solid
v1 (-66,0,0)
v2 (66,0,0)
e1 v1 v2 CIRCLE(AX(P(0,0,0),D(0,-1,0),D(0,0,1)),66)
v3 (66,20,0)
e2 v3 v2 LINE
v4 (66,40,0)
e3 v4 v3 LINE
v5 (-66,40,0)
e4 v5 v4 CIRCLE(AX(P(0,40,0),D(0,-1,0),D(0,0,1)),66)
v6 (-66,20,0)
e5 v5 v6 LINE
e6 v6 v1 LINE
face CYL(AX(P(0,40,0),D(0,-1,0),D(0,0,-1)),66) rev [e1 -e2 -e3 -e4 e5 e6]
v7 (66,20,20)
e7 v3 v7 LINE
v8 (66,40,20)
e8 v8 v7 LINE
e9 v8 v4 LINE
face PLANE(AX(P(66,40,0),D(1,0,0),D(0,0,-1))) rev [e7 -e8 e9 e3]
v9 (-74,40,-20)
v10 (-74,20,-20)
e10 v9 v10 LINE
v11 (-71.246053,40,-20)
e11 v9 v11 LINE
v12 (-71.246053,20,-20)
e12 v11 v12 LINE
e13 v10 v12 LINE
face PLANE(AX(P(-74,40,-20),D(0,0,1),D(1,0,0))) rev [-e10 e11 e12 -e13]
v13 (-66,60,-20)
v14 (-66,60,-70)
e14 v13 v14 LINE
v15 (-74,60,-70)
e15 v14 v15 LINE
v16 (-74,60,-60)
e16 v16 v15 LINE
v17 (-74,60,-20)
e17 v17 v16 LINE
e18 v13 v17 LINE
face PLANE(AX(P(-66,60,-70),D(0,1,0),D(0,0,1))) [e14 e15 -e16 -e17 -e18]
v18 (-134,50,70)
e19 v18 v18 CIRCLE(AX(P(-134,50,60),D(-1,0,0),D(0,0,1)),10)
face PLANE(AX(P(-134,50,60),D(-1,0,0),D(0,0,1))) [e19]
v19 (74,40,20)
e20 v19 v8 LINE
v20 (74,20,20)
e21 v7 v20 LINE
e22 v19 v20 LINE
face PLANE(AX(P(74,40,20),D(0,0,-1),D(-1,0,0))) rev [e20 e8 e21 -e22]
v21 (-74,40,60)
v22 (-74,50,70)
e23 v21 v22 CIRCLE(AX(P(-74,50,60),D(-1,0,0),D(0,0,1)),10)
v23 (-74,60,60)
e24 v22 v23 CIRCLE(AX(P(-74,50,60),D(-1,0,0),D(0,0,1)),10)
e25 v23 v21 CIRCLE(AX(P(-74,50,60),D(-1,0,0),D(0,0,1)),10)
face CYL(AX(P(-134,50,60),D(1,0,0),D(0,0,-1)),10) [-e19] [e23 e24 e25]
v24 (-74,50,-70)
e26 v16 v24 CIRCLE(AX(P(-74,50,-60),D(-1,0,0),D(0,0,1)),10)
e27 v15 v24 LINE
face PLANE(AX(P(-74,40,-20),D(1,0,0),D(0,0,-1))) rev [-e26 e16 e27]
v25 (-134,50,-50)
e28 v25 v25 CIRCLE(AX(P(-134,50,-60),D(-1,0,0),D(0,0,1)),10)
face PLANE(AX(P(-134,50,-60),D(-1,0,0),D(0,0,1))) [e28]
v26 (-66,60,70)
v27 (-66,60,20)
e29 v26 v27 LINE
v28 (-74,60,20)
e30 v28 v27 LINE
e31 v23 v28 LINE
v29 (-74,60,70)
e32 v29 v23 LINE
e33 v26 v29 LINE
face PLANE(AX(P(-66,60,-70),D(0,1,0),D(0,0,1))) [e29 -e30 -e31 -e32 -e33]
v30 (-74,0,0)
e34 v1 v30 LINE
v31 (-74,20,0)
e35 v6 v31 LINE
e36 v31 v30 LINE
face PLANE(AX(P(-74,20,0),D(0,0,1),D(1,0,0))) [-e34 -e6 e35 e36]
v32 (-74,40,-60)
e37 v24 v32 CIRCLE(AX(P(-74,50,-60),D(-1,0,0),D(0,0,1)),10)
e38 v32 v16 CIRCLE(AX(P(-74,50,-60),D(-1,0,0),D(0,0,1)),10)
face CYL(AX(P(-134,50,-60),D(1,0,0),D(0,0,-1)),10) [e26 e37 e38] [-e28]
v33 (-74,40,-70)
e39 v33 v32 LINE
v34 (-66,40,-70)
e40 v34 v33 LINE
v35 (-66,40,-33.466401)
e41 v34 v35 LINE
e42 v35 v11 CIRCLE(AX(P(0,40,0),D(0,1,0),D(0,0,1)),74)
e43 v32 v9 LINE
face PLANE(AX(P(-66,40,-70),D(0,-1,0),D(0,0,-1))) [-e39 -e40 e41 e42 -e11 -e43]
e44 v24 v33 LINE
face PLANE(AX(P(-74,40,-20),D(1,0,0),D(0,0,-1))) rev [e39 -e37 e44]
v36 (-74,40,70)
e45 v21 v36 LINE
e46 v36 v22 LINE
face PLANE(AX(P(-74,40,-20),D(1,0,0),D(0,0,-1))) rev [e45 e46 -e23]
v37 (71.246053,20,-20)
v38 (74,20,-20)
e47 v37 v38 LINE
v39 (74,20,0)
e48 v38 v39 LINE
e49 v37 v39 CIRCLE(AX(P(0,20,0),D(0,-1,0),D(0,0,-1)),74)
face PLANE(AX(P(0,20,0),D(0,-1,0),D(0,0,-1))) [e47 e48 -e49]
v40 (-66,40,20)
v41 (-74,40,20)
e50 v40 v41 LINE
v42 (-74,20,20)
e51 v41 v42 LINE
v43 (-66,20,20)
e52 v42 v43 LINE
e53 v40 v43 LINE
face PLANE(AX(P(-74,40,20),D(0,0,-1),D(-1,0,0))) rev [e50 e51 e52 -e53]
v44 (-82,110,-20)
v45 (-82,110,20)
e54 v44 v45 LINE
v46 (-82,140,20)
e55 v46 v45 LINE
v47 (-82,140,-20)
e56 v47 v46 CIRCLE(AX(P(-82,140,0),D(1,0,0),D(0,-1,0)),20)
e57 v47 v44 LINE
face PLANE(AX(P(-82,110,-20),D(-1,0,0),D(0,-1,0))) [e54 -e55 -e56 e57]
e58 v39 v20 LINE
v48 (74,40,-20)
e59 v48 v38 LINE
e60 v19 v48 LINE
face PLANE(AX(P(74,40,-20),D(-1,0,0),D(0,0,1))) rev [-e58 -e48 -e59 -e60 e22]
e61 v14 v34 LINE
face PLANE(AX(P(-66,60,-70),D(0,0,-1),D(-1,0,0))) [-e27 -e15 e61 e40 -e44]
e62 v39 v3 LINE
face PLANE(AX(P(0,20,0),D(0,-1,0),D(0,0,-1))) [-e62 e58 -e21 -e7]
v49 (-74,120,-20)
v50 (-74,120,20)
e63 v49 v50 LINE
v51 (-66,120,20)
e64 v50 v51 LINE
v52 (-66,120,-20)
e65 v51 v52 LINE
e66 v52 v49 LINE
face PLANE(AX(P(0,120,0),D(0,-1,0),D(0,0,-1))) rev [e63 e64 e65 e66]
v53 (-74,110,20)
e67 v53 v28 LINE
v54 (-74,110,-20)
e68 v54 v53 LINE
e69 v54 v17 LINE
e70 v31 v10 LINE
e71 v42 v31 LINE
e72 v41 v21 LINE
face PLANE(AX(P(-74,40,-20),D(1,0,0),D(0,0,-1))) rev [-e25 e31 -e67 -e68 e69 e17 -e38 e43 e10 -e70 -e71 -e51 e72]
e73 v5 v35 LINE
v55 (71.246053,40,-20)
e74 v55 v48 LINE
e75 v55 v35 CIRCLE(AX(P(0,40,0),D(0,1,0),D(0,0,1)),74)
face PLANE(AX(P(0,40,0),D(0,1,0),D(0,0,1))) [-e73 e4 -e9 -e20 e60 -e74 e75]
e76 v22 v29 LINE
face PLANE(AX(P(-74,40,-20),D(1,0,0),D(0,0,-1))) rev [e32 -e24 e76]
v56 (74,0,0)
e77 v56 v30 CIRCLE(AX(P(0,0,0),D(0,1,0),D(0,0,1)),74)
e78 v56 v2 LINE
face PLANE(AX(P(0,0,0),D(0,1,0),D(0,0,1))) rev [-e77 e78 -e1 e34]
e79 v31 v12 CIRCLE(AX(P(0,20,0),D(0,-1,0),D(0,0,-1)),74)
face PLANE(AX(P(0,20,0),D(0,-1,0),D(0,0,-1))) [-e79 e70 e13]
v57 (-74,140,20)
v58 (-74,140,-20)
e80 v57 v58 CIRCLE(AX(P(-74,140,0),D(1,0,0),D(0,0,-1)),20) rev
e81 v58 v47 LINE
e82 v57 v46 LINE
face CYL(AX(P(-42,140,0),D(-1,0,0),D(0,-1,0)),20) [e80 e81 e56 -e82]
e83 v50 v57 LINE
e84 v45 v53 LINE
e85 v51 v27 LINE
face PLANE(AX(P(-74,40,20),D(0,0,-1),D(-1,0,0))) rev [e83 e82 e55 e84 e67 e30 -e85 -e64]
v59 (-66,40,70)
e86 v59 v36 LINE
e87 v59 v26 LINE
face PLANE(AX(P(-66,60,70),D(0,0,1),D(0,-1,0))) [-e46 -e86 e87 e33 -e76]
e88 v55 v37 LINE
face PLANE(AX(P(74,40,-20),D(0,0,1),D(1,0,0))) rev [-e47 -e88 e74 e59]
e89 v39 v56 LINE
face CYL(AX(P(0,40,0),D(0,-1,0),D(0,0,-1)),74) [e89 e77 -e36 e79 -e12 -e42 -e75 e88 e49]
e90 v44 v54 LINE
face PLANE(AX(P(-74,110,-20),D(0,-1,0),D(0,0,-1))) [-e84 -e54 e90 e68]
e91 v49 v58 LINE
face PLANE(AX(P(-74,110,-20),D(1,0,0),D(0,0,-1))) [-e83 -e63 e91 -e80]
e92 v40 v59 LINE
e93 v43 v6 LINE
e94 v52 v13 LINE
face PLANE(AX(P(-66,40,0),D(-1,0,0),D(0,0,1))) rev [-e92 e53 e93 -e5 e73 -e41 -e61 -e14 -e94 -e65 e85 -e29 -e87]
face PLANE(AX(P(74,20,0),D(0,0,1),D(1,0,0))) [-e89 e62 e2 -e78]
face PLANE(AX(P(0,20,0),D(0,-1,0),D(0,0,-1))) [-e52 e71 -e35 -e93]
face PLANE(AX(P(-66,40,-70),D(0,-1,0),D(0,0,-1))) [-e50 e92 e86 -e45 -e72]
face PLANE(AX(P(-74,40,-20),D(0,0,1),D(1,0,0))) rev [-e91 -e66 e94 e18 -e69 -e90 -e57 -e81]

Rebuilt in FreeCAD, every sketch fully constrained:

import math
import FreeCAD as App
import Part
import Sketcher
from FreeCAD import Vector

doc = App.newDocument("Part")
body = doc.addObject("PartDesign::Body", "Body")

sketch1 = body.newObject("Sketcher::SketchObject", "Sketch")
sketch1.AttachmentSupport = (doc.getObject("XZ_Plane"), [""])
sketch1.MapMode = "FlatFace"
sketch1.addGeometry(Part.LineSegment(Vector(-71.2, -20, 0), Vector(-74, -20, 0)), False)
sketch1.addGeometry(Part.LineSegment(Vector(-74, -20, 0), Vector(-74, 20, 0)), False)
sketch1.addGeometry(Part.LineSegment(Vector(-74, 20, 0), Vector(-66, 20, 0)), False)
sketch1.addGeometry(Part.LineSegment(Vector(-66, 20, 0), Vector(-66, 0, 0)), False)
sketch1.addGeometry(Part.ArcOfCircle(Part.Circle(Vector(0, 0, 0), Vector(0, 0, 1), 66), math.radians(180), math.radians(360)), False)
sketch1.addGeometry(Part.LineSegment(Vector(66, 0, 0), Vector(66, 20, 0)), False)
sketch1.addGeometry(Part.LineSegment(Vector(66, 20, 0), Vector(74, 20, 0)), False)
sketch1.addGeometry(Part.LineSegment(Vector(74, 20, 0), Vector(74, -20, 0)), False)
sketch1.addGeometry(Part.LineSegment(Vector(74, -20, 0), Vector(71.2, -20, 0)), False)
sketch1.addGeometry(Part.ArcOfCircle(Part.Circle(Vector(0, 0, 0), Vector(0, 0, 1), 74), math.radians(-164), math.radians(-16)), False)
sketch1.addConstraint(Sketcher.Constraint("Coincident", 0, 2, 1, 1))
sketch1.addConstraint(Sketcher.Constraint("Coincident", 1, 2, 2, 1))
sketch1.addConstraint(Sketcher.Constraint("Coincident", 2, 2, 3, 1))
sketch1.addConstraint(Sketcher.Constraint("Tangent", 3, 2, 4, 1))
sketch1.addConstraint(Sketcher.Constraint("Tangent", 4, 2, 5, 1))
sketch1.addConstraint(Sketcher.Constraint("Coincident", 5, 2, 6, 1))
sketch1.addConstraint(Sketcher.Constraint("Coincident", 6, 2, 7, 1))
sketch1.addConstraint(Sketcher.Constraint("Coincident", 7, 2, 8, 1))
sketch1.addConstraint(Sketcher.Constraint("Coincident", 8, 2, 9, 2))
sketch1.addConstraint(Sketcher.Constraint("Coincident", 9, 1, 0, 1))
sketch1.addConstraint(Sketcher.Constraint("Horizontal", 0))
sketch1.addConstraint(Sketcher.Constraint("Vertical", 1))
sketch1.addConstraint(Sketcher.Constraint("Horizontal", 2))
sketch1.addConstraint(Sketcher.Constraint("Vertical", 3))
sketch1.addConstraint(Sketcher.Constraint("Vertical", 5))
sketch1.addConstraint(Sketcher.Constraint("Horizontal", 6))
sketch1.addConstraint(Sketcher.Constraint("Vertical", 7))
sketch1.addConstraint(Sketcher.Constraint("Horizontal", 8))
sketch1.addConstraint(Sketcher.Constraint("Coincident", 4, 3, -1, 1))
sketch1.addConstraint(Sketcher.Constraint("Coincident", 9, 3, -1, 1))
sketch1.addConstraint(Sketcher.Constraint("Symmetric", 0, 2, 6, 2, -1, 1))
sketch1.addConstraint(Sketcher.Constraint("Horizontal", 2, 2, 5, 2))
sketch1.addConstraint(Sketcher.Constraint("Horizontal", 0, 2, 7, 2))
sketch1.addConstraint(Sketcher.Constraint("Radius", 4, 66.0))
sketch1.addConstraint(Sketcher.Constraint("Radius", 9, 74.0))
sketch1.addConstraint(Sketcher.Constraint("DistanceX", 2, 1, 2, 2, 8.0))
sketch1.addConstraint(Sketcher.Constraint("DistanceY", 1, 1, 1, 2, 40.0))
pad1 = body.newObject("PartDesign::Pad", "Pad")
pad1.Profile = sketch1
pad1.Length = 40
pad1.Reversed = True

sketch2 = body.newObject("Sketcher::SketchObject", "Sketch001")
sketch2.AttachmentSupport = (doc.getObject("XZ_Plane"), [""])
sketch2.MapMode = "FlatFace"
sketch2.AttachmentOffset = App.Placement(Vector(0, 0, -40), App.Rotation())
sketch2.addGeometry(Part.LineSegment(Vector(-74, -20, 0), Vector(-74, 20, 0)), False)
sketch2.addGeometry(Part.LineSegment(Vector(-74, 20, 0), Vector(-66, 20, 0)), False)
sketch2.addGeometry(Part.LineSegment(Vector(-66, 20, 0), Vector(-66, -20, 0)), False)
sketch2.addGeometry(Part.LineSegment(Vector(-66, -20, 0), Vector(-74, -20, 0)), False)
sketch2.addGeometry(Part.LineSegment(Vector(66, -20, 0), Vector(66, 20, 0)), False)
sketch2.addGeometry(Part.LineSegment(Vector(66, 20, 0), Vector(74, 20, 0)), False)
sketch2.addGeometry(Part.LineSegment(Vector(74, 20, 0), Vector(74, -20, 0)), False)
sketch2.addGeometry(Part.LineSegment(Vector(74, -20, 0), Vector(66, -20, 0)), False)
sketch2.addConstraint(Sketcher.Constraint("Coincident", 0, 2, 1, 1))
sketch2.addConstraint(Sketcher.Constraint("Coincident", 1, 2, 2, 1))
sketch2.addConstraint(Sketcher.Constraint("Coincident", 2, 2, 3, 1))
sketch2.addConstraint(Sketcher.Constraint("Coincident", 3, 2, 0, 1))
sketch2.addConstraint(Sketcher.Constraint("Coincident", 4, 2, 5, 1))
sketch2.addConstraint(Sketcher.Constraint("Coincident", 5, 2, 6, 1))
sketch2.addConstraint(Sketcher.Constraint("Coincident", 6, 2, 7, 1))
sketch2.addConstraint(Sketcher.Constraint("Coincident", 7, 2, 4, 1))
sketch2.addConstraint(Sketcher.Constraint("Vertical", 0))
sketch2.addConstraint(Sketcher.Constraint("Horizontal", 1))
sketch2.addConstraint(Sketcher.Constraint("Vertical", 2))
sketch2.addConstraint(Sketcher.Constraint("Horizontal", 3))
sketch2.addConstraint(Sketcher.Constraint("Vertical", 4))
sketch2.addConstraint(Sketcher.Constraint("Horizontal", 5))
sketch2.addConstraint(Sketcher.Constraint("Vertical", 6))
sketch2.addConstraint(Sketcher.Constraint("Horizontal", 7))
sketch2.addConstraint(Sketcher.Constraint("Symmetric", 2, 2, 4, 2, -1, 1))
sketch2.addConstraint(Sketcher.Constraint("Symmetric", 0, 2, 6, 2, -1, 1))
sketch2.addConstraint(Sketcher.Constraint("Horizontal", 1, 2, 4, 2))
sketch2.addConstraint(Sketcher.Constraint("DistanceX", 1, 1, 1, 2, 8.0))
sketch2.addConstraint(Sketcher.Constraint("DistanceY", 0, 1, 0, 2, 40.0))
sketch2.addConstraint(Sketcher.Constraint("DistanceX", 0, 2, -1, 1, 74.0))
pad2 = body.newObject("PartDesign::Pad", "Pad001")
pad2.Profile = sketch2
pad2.Length = 80
pad2.Reversed = True

sketch3 = body.newObject("Sketcher::SketchObject", "Sketch002")
sketch3.AttachmentSupport = (doc.getObject("YZ_Plane"), [""])
sketch3.MapMode = "FlatFace"
sketch3.AttachmentOffset = App.Placement(Vector(0, 0, 74), App.Rotation())
sketch3.addGeometry(Part.LineSegment(Vector(155, 67, 0), Vector(40, 67, 0)), False)
sketch3.addGeometry(Part.LineSegment(Vector(40, 67, 0), Vector(40, -20, 0)), False)
sketch3.addGeometry(Part.LineSegment(Vector(40, -20, 0), Vector(155, -20, 0)), False)
sketch3.addGeometry(Part.LineSegment(Vector(155, -20, 0), Vector(155, 67, 0)), False)
sketch3.addConstraint(Sketcher.Constraint("Coincident", 0, 2, 1, 1))
sketch3.addConstraint(Sketcher.Constraint("Coincident", 1, 2, 2, 1))
sketch3.addConstraint(Sketcher.Constraint("Coincident", 2, 2, 3, 1))
sketch3.addConstraint(Sketcher.Constraint("Coincident", 3, 2, 0, 1))
sketch3.addConstraint(Sketcher.Constraint("Horizontal", 0))
sketch3.addConstraint(Sketcher.Constraint("Vertical", 1))
sketch3.addConstraint(Sketcher.Constraint("Horizontal", 2))
sketch3.addConstraint(Sketcher.Constraint("Vertical", 3))
sketch3.addConstraint(Sketcher.Constraint("DistanceX", -1, 1, 0, 2, 40.0))
sketch3.addConstraint(Sketcher.Constraint("DistanceY", 1, 2, -1, 1, 20.0))
sketch3.addConstraint(Sketcher.Constraint("DistanceY", 1, 2, 1, 1, 87.007662))
sketch3.addConstraint(Sketcher.Constraint("DistanceX", 0, 2, 0, 1, 115.014953))
pocket1 = body.newObject("PartDesign::Pocket", "Pocket")
pocket1.Profile = sketch3
pocket1.Length = 10

sketch4 = body.newObject("Sketcher::SketchObject", "Sketch003")
sketch4.AttachmentSupport = (doc.getObject("XZ_Plane"), [""])
sketch4.MapMode = "FlatFace"
sketch4.addGeometry(Part.Circle(Vector(0, 0, 0), Vector(0, 0, 1), 85), False)
sketch4.addGeometry(Part.LineSegment(Vector(-66, 20, 0), Vector(-71, 20, 0)), False)
sketch4.addGeometry(Part.ArcOfCircle(Part.Circle(Vector(0, 0, 0), Vector(0, 0, 1), 74), math.radians(16), math.radians(164)), False)
sketch4.addGeometry(Part.LineSegment(Vector(71, 20, 0), Vector(66, 20, 0)), False)
sketch4.addGeometry(Part.LineSegment(Vector(66, 20, 0), Vector(66, 0, 0)), False)
sketch4.addGeometry(Part.LineSegment(Vector(66, 0, 0), Vector(74, 0, 0)), False)
sketch4.addGeometry(Part.ArcOfCircle(Part.Circle(Vector(0, 0, 0), Vector(0, 0, 1), 74), math.radians(180), math.radians(360)), False)
sketch4.addGeometry(Part.LineSegment(Vector(-74, 0, 0), Vector(-66, 0, 0)), False)
sketch4.addGeometry(Part.LineSegment(Vector(-66, 0, 0), Vector(-66, 20, 0)), False)
sketch4.addConstraint(Sketcher.Constraint("Coincident", 1, 2, 2, 2))
sketch4.addConstraint(Sketcher.Constraint("Coincident", 2, 1, 3, 1))
sketch4.addConstraint(Sketcher.Constraint("Coincident", 3, 2, 4, 1))
sketch4.addConstraint(Sketcher.Constraint("Coincident", 4, 2, 5, 1))
sketch4.addConstraint(Sketcher.Constraint("Coincident", 5, 2, 6, 2))
sketch4.addConstraint(Sketcher.Constraint("Coincident", 6, 1, 7, 1))
sketch4.addConstraint(Sketcher.Constraint("Coincident", 7, 2, 8, 1))
sketch4.addConstraint(Sketcher.Constraint("Coincident", 8, 2, 1, 1))
sketch4.addConstraint(Sketcher.Constraint("Horizontal", 1))
sketch4.addConstraint(Sketcher.Constraint("Horizontal", 3))
sketch4.addConstraint(Sketcher.Constraint("Vertical", 4))
sketch4.addConstraint(Sketcher.Constraint("Horizontal", 5))
sketch4.addConstraint(Sketcher.Constraint("Horizontal", 7))
sketch4.addConstraint(Sketcher.Constraint("Vertical", 8))
sketch4.addConstraint(Sketcher.Constraint("Coincident", 0, 3, -1, 1))
sketch4.addConstraint(Sketcher.Constraint("Coincident", 2, 3, -1, 1))
sketch4.addConstraint(Sketcher.Constraint("Coincident", 6, 3, -1, 1))
sketch4.addConstraint(Sketcher.Constraint("Equal", 2, 6))
sketch4.addConstraint(Sketcher.Constraint("Symmetric", 4, 2, 7, 2, -1, 1))
sketch4.addConstraint(Sketcher.Constraint("PointOnObject", 4, 2, -1))
sketch4.addConstraint(Sketcher.Constraint("Horizontal", 1, 2, 2, 1))
sketch4.addConstraint(Sketcher.Constraint("Radius", 2, 74.0))
sketch4.addConstraint(Sketcher.Constraint("DistanceX", 5, 1, 5, 2, 8.0))
sketch4.addConstraint(Sketcher.Constraint("DistanceY", 4, 2, 4, 1, 20.0))
sketch4.addConstraint(Sketcher.Constraint("Diameter", 0, 170.126722))
pocket2 = body.newObject("PartDesign::Pocket", "Pocket001")
pocket2.Profile = sketch4
pocket2.Length = 20

sketch5 = body.newObject("Sketcher::SketchObject", "Sketch004")
sketch5.AttachmentSupport = (doc.getObject("YZ_Plane"), [""])
sketch5.MapMode = "FlatFace"
sketch5.AttachmentOffset = App.Placement(Vector(0, 0, -74), App.Rotation())
sketch5.addGeometry(Part.LineSegment(Vector(60, -70, 0), Vector(40, -70, 0)), False)
sketch5.addGeometry(Part.LineSegment(Vector(40, -70, 0), Vector(40, 70, 0)), False)
sketch5.addGeometry(Part.LineSegment(Vector(40, 70, 0), Vector(60, 70, 0)), False)
sketch5.addGeometry(Part.LineSegment(Vector(60, 70, 0), Vector(60, -70, 0)), False)
sketch5.addConstraint(Sketcher.Constraint("Coincident", 0, 2, 1, 1))
sketch5.addConstraint(Sketcher.Constraint("Coincident", 1, 2, 2, 1))
sketch5.addConstraint(Sketcher.Constraint("Coincident", 2, 2, 3, 1))
sketch5.addConstraint(Sketcher.Constraint("Coincident", 3, 2, 0, 1))
sketch5.addConstraint(Sketcher.Constraint("Horizontal", 0))
sketch5.addConstraint(Sketcher.Constraint("Vertical", 1))
sketch5.addConstraint(Sketcher.Constraint("Horizontal", 2))
sketch5.addConstraint(Sketcher.Constraint("Vertical", 3))
sketch5.addConstraint(Sketcher.Constraint("DistanceX", 0, 2, 0, 1, 20.0))
sketch5.addConstraint(Sketcher.Constraint("DistanceY", 1, 1, 1, 2, 140.0))
sketch5.addConstraint(Sketcher.Constraint("DistanceX", -1, 1, 0, 2, 40.0))
sketch5.addConstraint(Sketcher.Constraint("DistanceY", 0, 2, -1, 1, 70.0))
pad3 = body.newObject("PartDesign::Pad", "Pad002")
pad3.Profile = sketch5
pad3.Length = 8

sketch6 = body.newObject("Sketcher::SketchObject", "Sketch005")
sketch6.AttachmentSupport = (doc.getObject("YZ_Plane"), [""])
sketch6.MapMode = "FlatFace"
sketch6.AttachmentOffset = App.Placement(Vector(0, 0, -74), App.Rotation())
sketch6.addGeometry(Part.Circle(Vector(50, -60, 0), Vector(0, 0, 1), 10), False)
sketch6.addGeometry(Part.Circle(Vector(50, 60, 0), Vector(0, 0, 1), 10), False)
sketch6.addConstraint(Sketcher.Constraint("Equal", 0, 1))
sketch6.addConstraint(Sketcher.Constraint("Symmetric", 0, 3, 1, 3, -1))
sketch6.addConstraint(Sketcher.Constraint("Diameter", 0, 20.0))
sketch6.addConstraint(Sketcher.Constraint("DistanceX", -1, 1, 0, 3, 50.0))
sketch6.addConstraint(Sketcher.Constraint("DistanceY", 0, 3, -1, 1, 60.0))
pad4 = body.newObject("PartDesign::Pad", "Pad003")
pad4.Profile = sketch6
pad4.Length = 60
pad4.Reversed = True

sketch7 = body.newObject("Sketcher::SketchObject", "Sketch006")
sketch7.AttachmentSupport = (doc.getObject("XY_Plane"), [""])
sketch7.MapMode = "FlatFace"
sketch7.AttachmentOffset = App.Placement(Vector(0, 0, 20), App.Rotation())
sketch7.addGeometry(Part.LineSegment(Vector(-82, 160, 0), Vector(-82, 110, 0)), False)
sketch7.addGeometry(Part.LineSegment(Vector(-82, 110, 0), Vector(-74, 110, 0)), False)
sketch7.addGeometry(Part.LineSegment(Vector(-74, 110, 0), Vector(-74, 160, 0)), False)
sketch7.addGeometry(Part.LineSegment(Vector(-74, 160, 0), Vector(-82, 160, 0)), False)
sketch7.addConstraint(Sketcher.Constraint("Coincident", 0, 2, 1, 1))
sketch7.addConstraint(Sketcher.Constraint("Coincident", 1, 2, 2, 1))
sketch7.addConstraint(Sketcher.Constraint("Coincident", 2, 2, 3, 1))
sketch7.addConstraint(Sketcher.Constraint("Coincident", 3, 2, 0, 1))
sketch7.addConstraint(Sketcher.Constraint("Vertical", 0))
sketch7.addConstraint(Sketcher.Constraint("Horizontal", 1))
sketch7.addConstraint(Sketcher.Constraint("Vertical", 2))
sketch7.addConstraint(Sketcher.Constraint("Horizontal", 3))
sketch7.addConstraint(Sketcher.Constraint("DistanceX", 1, 1, 1, 2, 8.0))
sketch7.addConstraint(Sketcher.Constraint("DistanceY", 0, 2, 0, 1, 50.0))
sketch7.addConstraint(Sketcher.Constraint("DistanceX", 0, 2, -1, 1, 82.0))
sketch7.addConstraint(Sketcher.Constraint("DistanceY", -1, 1, 0, 2, 110.0))
pad5 = body.newObject("PartDesign::Pad", "Pad004")
pad5.Profile = sketch7
pad5.Length = 40
pad5.Reversed = True

sketch8 = body.newObject("Sketcher::SketchObject", "Sketch007")
sketch8.AttachmentSupport = (doc.getObject("YZ_Plane"), [""])
sketch8.MapMode = "FlatFace"
sketch8.AttachmentOffset = App.Placement(Vector(0, 0, -82), App.Rotation())
sketch8.addGeometry(Part.LineSegment(Vector(168, -20, 0), Vector(140, -20, 0)), False)
sketch8.addGeometry(Part.ArcOfCircle(Part.Circle(Vector(140, 0, 0), Vector(0, 0, 1), 20), math.radians(-90), math.radians(90)), False)
sketch8.addGeometry(Part.LineSegment(Vector(140, 20, 0), Vector(168, 20, 0)), False)
sketch8.addGeometry(Part.LineSegment(Vector(168, 20, 0), Vector(168, -20, 0)), False)
sketch8.addConstraint(Sketcher.Constraint("Tangent", 0, 2, 1, 1))
sketch8.addConstraint(Sketcher.Constraint("Tangent", 1, 2, 2, 1))
sketch8.addConstraint(Sketcher.Constraint("Coincident", 2, 2, 3, 1))
sketch8.addConstraint(Sketcher.Constraint("Coincident", 3, 2, 0, 1))
sketch8.addConstraint(Sketcher.Constraint("Horizontal", 0))
sketch8.addConstraint(Sketcher.Constraint("Horizontal", 2))
sketch8.addConstraint(Sketcher.Constraint("Vertical", 3))
sketch8.addConstraint(Sketcher.Constraint("PointOnObject", 1, 3, -1))
sketch8.addConstraint(Sketcher.Constraint("Radius", 1, 20.0))
sketch8.addConstraint(Sketcher.Constraint("DistanceX", -1, 1, 1, 3, 140.0))
sketch8.addConstraint(Sketcher.Constraint("DistanceX", 0, 2, 0, 1, 28.258519))
pocket3 = body.newObject("PartDesign::Pocket", "Pocket002")
pocket3.Profile = sketch8
pocket3.Length = 40
pocket3.Reversed = True

doc.recompute()
